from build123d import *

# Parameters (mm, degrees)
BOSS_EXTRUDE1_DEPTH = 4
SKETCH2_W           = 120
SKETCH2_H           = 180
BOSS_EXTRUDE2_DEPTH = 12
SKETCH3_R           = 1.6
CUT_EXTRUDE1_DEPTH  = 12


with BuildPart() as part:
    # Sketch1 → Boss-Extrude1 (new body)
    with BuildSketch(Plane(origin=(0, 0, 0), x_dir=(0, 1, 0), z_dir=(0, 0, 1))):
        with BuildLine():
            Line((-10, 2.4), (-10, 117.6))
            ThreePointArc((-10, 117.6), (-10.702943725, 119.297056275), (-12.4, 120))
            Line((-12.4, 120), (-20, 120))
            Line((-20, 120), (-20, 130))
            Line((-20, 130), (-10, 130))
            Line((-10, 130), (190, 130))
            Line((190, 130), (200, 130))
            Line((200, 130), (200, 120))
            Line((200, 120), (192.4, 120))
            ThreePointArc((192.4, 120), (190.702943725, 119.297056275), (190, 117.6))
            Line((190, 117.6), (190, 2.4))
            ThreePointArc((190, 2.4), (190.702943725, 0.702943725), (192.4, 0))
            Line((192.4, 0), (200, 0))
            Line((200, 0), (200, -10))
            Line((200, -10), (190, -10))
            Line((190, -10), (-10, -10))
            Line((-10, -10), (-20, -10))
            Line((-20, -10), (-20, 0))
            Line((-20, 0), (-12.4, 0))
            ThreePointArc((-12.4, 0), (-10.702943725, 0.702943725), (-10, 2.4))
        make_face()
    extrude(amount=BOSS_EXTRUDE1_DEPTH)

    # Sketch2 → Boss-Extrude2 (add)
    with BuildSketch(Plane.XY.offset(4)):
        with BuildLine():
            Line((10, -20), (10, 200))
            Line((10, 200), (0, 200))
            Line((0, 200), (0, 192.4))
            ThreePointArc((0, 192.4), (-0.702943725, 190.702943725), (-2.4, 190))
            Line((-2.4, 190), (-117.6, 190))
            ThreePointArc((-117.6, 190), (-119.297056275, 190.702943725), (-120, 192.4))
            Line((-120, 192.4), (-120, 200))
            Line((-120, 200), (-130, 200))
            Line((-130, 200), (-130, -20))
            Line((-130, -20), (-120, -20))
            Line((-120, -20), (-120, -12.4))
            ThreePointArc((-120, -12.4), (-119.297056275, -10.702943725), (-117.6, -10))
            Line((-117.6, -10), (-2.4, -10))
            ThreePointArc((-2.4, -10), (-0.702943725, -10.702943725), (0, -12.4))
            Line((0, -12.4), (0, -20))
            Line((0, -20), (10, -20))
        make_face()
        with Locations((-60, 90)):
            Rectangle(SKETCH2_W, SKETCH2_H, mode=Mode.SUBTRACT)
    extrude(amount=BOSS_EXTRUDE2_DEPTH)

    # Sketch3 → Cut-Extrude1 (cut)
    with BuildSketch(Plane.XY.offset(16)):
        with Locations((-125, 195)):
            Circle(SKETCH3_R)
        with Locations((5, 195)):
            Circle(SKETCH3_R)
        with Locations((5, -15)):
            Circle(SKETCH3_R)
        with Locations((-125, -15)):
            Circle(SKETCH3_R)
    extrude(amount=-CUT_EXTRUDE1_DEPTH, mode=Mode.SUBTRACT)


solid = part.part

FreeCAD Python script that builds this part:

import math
import FreeCAD as App
import Part
import Sketcher
from FreeCAD import Vector

doc = App.newDocument("Part")
body = doc.addObject("PartDesign::Body", "Body")

sketch1 = doc.addObject("Sketcher::SketchObject", "Sketch")
body.addObject(sketch1)
sketch1.AttachmentSupport = (doc.XY_Plane, [""])
sketch1.MapMode = "FlatFace"
sketch1.addGeometry([
    Part.LineSegment(Vector(-117.6, -10, 0), Vector(-2.4, -10, 0)),
    Part.ArcOfCircle(Part.Circle(Vector(-2.4, -12.4, 0), Vector(0, 0, 1), 2.4), math.radians(0), math.radians(90)),
    Part.LineSegment(Vector(0, -12.4, 0), Vector(0, -20, 0)),
    Part.LineSegment(Vector(0, -20, 0), Vector(10, -20, 0)),
    Part.LineSegment(Vector(10, -20, 0), Vector(10, 200, 0)),
    Part.LineSegment(Vector(10, 200, 0), Vector(0, 200, 0)),
    Part.LineSegment(Vector(0, 200, 0), Vector(0, 192.4, 0)),
    Part.ArcOfCircle(Part.Circle(Vector(-2.4, 192.4, 0), Vector(0, 0, 1), 2.4), math.radians(-90), math.radians(0)),
    Part.LineSegment(Vector(-2.4, 190, 0), Vector(-117.6, 190, 0)),
    Part.ArcOfCircle(Part.Circle(Vector(-117.6, 192.4, 0), Vector(0, 0, 1), 2.4), math.radians(180), math.radians(270)),
    Part.LineSegment(Vector(-120, 192.4, 0), Vector(-120, 200, 0)),
    Part.LineSegment(Vector(-120, 200, 0), Vector(-130, 200, 0)),
    Part.LineSegment(Vector(-130, 200, 0), Vector(-130, -20, 0)),
    Part.LineSegment(Vector(-130, -20, 0), Vector(-120, -20, 0)),
    Part.LineSegment(Vector(-120, -20, 0), Vector(-120, -12.4, 0)),
    Part.ArcOfCircle(Part.Circle(Vector(-117.6, -12.4, 0), Vector(0, 0, 1), 2.4), math.radians(90), math.radians(180)),
], False)
sketch1.addConstraint([
    Sketcher.Constraint("Tangent", 0, 2, 1, 2),
    Sketcher.Constraint("Tangent", 1, 1, 2, 1),
    Sketcher.Constraint("Coincident", 2, 2, 3, 1),
    Sketcher.Constraint("Coincident", 3, 2, 4, 1),
    Sketcher.Constraint("Coincident", 4, 2, 5, 1),
    Sketcher.Constraint("Coincident", 5, 2, 6, 1),
    Sketcher.Constraint("Tangent", 6, 2, 7, 2),
    Sketcher.Constraint("Tangent", 7, 1, 8, 1),
    Sketcher.Constraint("Tangent", 8, 2, 9, 2),
    Sketcher.Constraint("Tangent", 9, 1, 10, 1),
    Sketcher.Constraint("Coincident", 10, 2, 11, 1),
    Sketcher.Constraint("Coincident", 11, 2, 12, 1),
    Sketcher.Constraint("Coincident", 12, 2, 13, 1),
    Sketcher.Constraint("Coincident", 13, 2, 14, 1),
    Sketcher.Constraint("Tangent", 14, 2, 15, 2),
    Sketcher.Constraint("Tangent", 15, 1, 0, 1),
    Sketcher.Constraint("Horizontal", 0),
    Sketcher.Constraint("Vertical", 2),
    Sketcher.Constraint("Horizontal", 3),
    Sketcher.Constraint("Vertical", 4),
    Sketcher.Constraint("Horizontal", 5),
    Sketcher.Constraint("Vertical", 6),
    Sketcher.Constraint("Horizontal", 8),
    Sketcher.Constraint("Vertical", 10),
    Sketcher.Constraint("Horizontal", 11),
    Sketcher.Constraint("Vertical", 12),
    Sketcher.Constraint("Horizontal", 13),
    Sketcher.Constraint("Vertical", 14),
    Sketcher.Constraint("Equal", 1, 7),
    Sketcher.Constraint("Equal", 7, 9),
    Sketcher.Constraint("Equal", 9, 15),
    Sketcher.Constraint("PointOnObject", 1, 1, -2),
    Sketcher.Constraint("PointOnObject", 5, 2, -2),
    Sketcher.Constraint("Horizontal", 5, 2, 10, 2),
    Sketcher.Constraint("Horizontal", 3, 2, 12, 2),
    Sketcher.Constraint("Vertical", 9, 3, 15, 3),
    Sketcher.Constraint("Equal", 5, 11),
    Sketcher.Constraint("Equal", 2, 6),
    Sketcher.Constraint("Radius", 1, 2.4),
    Sketcher.Constraint("DistanceX", 3, 1, 3, 2, 10.0),
    Sketcher.Constraint("DistanceY", 4, 1, 4, 2, 220.0),
    Sketcher.Constraint("DistanceX", 0, 1, 0, 2, 115.2),
    Sketcher.Constraint("DistanceY", 2, 2, 2, 1, 7.6),
    Sketcher.Constraint("DistanceY", 0, 2, -1, 1, 10.0),
])
pad1 = doc.addObject("PartDesign::Pad", "Pad")
body.addObject(pad1)
pad1.Profile = sketch1
pad1.Length = 4

sketch2 = doc.addObject("Sketcher::SketchObject", "Sketch001")
body.addObject(sketch2)
sketch2.AttachmentSupport = (doc.XY_Plane, [""])
sketch2.MapMode = "FlatFace"
sketch2.AttachmentOffset = App.Placement(Vector(0, 0, 4), App.Rotation())
sketch2.addGeometry([
    Part.LineSegment(Vector(10, -20, 0), Vector(10, 200, 0)),
    Part.LineSegment(Vector(10, 200, 0), Vector(0, 200, 0)),
    Part.LineSegment(Vector(0, 200, 0), Vector(0, 192.4, 0)),
    Part.ArcOfCircle(Part.Circle(Vector(-2.4, 192.4, 0), Vector(0, 0, 1), 2.4), math.radians(-90), math.radians(0)),
    Part.LineSegment(Vector(-2.4, 190, 0), Vector(-117.6, 190, 0)),
    Part.ArcOfCircle(Part.Circle(Vector(-117.6, 192.4, 0), Vector(0, 0, 1), 2.4), math.radians(180), math.radians(270)),
    Part.LineSegment(Vector(-120, 192.4, 0), Vector(-120, 200, 0)),
    Part.LineSegment(Vector(-120, 200, 0), Vector(-130, 200, 0)),
    Part.LineSegment(Vector(-130, 200, 0), Vector(-130, -20, 0)),
    Part.LineSegment(Vector(-130, -20, 0), Vector(-120, -20, 0)),
    Part.LineSegment(Vector(-120, -20, 0), Vector(-120, -12.4, 0)),
    Part.ArcOfCircle(Part.Circle(Vector(-117.6, -12.4, 0), Vector(0, 0, 1), 2.4), math.radians(90), math.radians(180)),
    Part.LineSegment(Vector(-117.6, -10, 0), Vector(-2.4, -10, 0)),
    Part.ArcOfCircle(Part.Circle(Vector(-2.4, -12.4, 0), Vector(0, 0, 1), 2.4), math.radians(0), math.radians(90)),
    Part.LineSegment(Vector(0, -12.4, 0), Vector(0, -20, 0)),
    Part.LineSegment(Vector(0, -20, 0), Vector(10, -20, 0)),
    Part.LineSegment(Vector(0, 0, 0), Vector(-120, 0, 0)),
    Part.LineSegment(Vector(-120, 0, 0), Vector(-120, 180, 0)),
    Part.LineSegment(Vector(-120, 180, 0), Vector(0, 180, 0)),
    Part.LineSegment(Vector(0, 180, 0), Vector(0, 0, 0)),
], False)
sketch2.addConstraint([
    Sketcher.Constraint("Coincident", 0, 2, 1, 1),
    Sketcher.Constraint("Coincident", 1, 2, 2, 1),
    Sketcher.Constraint("Tangent", 2, 2, 3, 2),
    Sketcher.Constraint("Tangent", 3, 1, 4, 1),
    Sketcher.Constraint("Tangent", 4, 2, 5, 2),
    Sketcher.Constraint("Tangent", 5, 1, 6, 1),
    Sketcher.Constraint("Coincident", 6, 2, 7, 1),
    Sketcher.Constraint("Coincident", 7, 2, 8, 1),
    Sketcher.Constraint("Coincident", 8, 2, 9, 1),
    Sketcher.Constraint("Coincident", 9, 2, 10, 1),
    Sketcher.Constraint("Tangent", 10, 2, 11, 2),
    Sketcher.Constraint("Tangent", 11, 1, 12, 1),
    Sketcher.Constraint("Tangent", 12, 2, 13, 2),
    Sketcher.Constraint("Tangent", 13, 1, 14, 1),
    Sketcher.Constraint("Coincident", 14, 2, 15, 1),
    Sketcher.Constraint("Coincident", 15, 2, 0, 1),
    Sketcher.Constraint("Coincident", 16, 2, 17, 1),
    Sketcher.Constraint("Coincident", 17, 2, 18, 1),
    Sketcher.Constraint("Coincident", 18, 2, 19, 1),
    Sketcher.Constraint("Coincident", 19, 2, 16, 1),
    Sketcher.Constraint("Vertical", 0),
    Sketcher.Constraint("Horizontal", 1),
    Sketcher.Constraint("Vertical", 2),
    Sketcher.Constraint("Horizontal", 4),
    Sketcher.Constraint("Vertical", 6),
    Sketcher.Constraint("Horizontal", 7),
    Sketcher.Constraint("Vertical", 8),
    Sketcher.Constraint("Horizontal", 9),
    Sketcher.Constraint("Vertical", 10),
    Sketcher.Constraint("Horizontal", 12),
    Sketcher.Constraint("Vertical", 14),
    Sketcher.Constraint("Horizontal", 15),
    Sketcher.Constraint("Horizontal", 16),
    Sketcher.Constraint("Vertical", 17),
    Sketcher.Constraint("Horizontal", 18),
    Sketcher.Constraint("Vertical", 19),
    Sketcher.Constraint("Coincident", 19, 2, -1, 1),
    Sketcher.Constraint("Equal", 3, 5),
    Sketcher.Constraint("Equal", 5, 11),
    Sketcher.Constraint("Equal", 11, 13),
    Sketcher.Constraint("PointOnObject", 1, 2, -2),
    Sketcher.Constraint("PointOnObject", 13, 1, -2),
    Sketcher.Constraint("Horizontal", 1, 2, 6, 2),
    Sketcher.Constraint("Horizontal", 9, 2, 14, 2),
    Sketcher.Constraint("Vertical", 5, 3, 11, 3),
    Sketcher.Constraint("Vertical", 10, 2, 16, 2),
    Sketcher.Constraint("Equal", 1, 7),
    Sketcher.Constraint("Equal", 6, 10),
    Sketcher.Constraint("Radius", 3, 2.4),
    Sketcher.Constraint("DistanceX", 1, 2, 1, 1, 10.0),
    Sketcher.Constraint("DistanceX", 16, 2, 16, 1, 120.0),
    Sketcher.Constraint("DistanceY", 0, 1, 0, 2, 220.0),
    Sketcher.Constraint("DistanceY", 17, 1, 17, 2, 180.0),
    Sketcher.Constraint("DistanceY", 2, 2, 2, 1, 7.6),
    Sketcher.Constraint("DistanceY", -1, 1, 0, 2, 200.0),
])
pad2 = doc.addObject("PartDesign::Pad", "Pad001")
body.addObject(pad2)
pad2.Profile = sketch2
pad2.Length = 12

sketch3 = doc.addObject("Sketcher::SketchObject", "Sketch002")
body.addObject(sketch3)
sketch3.AttachmentSupport = (doc.XY_Plane, [""])
sketch3.MapMode = "FlatFace"
sketch3.AttachmentOffset = App.Placement(Vector(0, 0, 16), App.Rotation())
sketch3.addGeometry([
    Part.Circle(Vector(-125, 195, 0), Vector(0, 0, 1), 1.6),
    Part.Circle(Vector(5, 195, 0), Vector(0, 0, 1), 1.6),
    Part.Circle(Vector(5, -15, 0), Vector(0, 0, 1), 1.6),
    Part.Circle(Vector(-125, -15, 0), Vector(0, 0, 1), 1.6),
], False)
sketch3.addConstraint([
    Sketcher.Constraint("Equal", 0, 1),
    Sketcher.Constraint("Equal", 1, 2),
    Sketcher.Constraint("Equal", 2, 3),
    Sketcher.Constraint("Horizontal", 0, 3, 1, 3),
    Sketcher.Constraint("Horizontal", 2, 3, 3, 3),
    Sketcher.Constraint("Vertical", 1, 3, 2, 3),
    Sketcher.Constraint("Vertical", 0, 3, 3, 3),
    Sketcher.Constraint("Diameter", 0, 3.2),
    Sketcher.Constraint("DistanceX", 0, 3, -1, 1, 125.0),
    Sketcher.Constraint("DistanceY", -1, 1, 0, 3, 195.0),
    Sketcher.Constraint("DistanceX", -1, 1, 1, 3, 5.0),
    Sketcher.Constraint("DistanceY", 2, 3, -1, 1, 15.0),
])
pocket1 = doc.addObject("PartDesign::Pocket", "Pocket")
body.addObject(pocket1)
pocket1.Profile = sketch3
pocket1.Length = 12

doc.recompute()
